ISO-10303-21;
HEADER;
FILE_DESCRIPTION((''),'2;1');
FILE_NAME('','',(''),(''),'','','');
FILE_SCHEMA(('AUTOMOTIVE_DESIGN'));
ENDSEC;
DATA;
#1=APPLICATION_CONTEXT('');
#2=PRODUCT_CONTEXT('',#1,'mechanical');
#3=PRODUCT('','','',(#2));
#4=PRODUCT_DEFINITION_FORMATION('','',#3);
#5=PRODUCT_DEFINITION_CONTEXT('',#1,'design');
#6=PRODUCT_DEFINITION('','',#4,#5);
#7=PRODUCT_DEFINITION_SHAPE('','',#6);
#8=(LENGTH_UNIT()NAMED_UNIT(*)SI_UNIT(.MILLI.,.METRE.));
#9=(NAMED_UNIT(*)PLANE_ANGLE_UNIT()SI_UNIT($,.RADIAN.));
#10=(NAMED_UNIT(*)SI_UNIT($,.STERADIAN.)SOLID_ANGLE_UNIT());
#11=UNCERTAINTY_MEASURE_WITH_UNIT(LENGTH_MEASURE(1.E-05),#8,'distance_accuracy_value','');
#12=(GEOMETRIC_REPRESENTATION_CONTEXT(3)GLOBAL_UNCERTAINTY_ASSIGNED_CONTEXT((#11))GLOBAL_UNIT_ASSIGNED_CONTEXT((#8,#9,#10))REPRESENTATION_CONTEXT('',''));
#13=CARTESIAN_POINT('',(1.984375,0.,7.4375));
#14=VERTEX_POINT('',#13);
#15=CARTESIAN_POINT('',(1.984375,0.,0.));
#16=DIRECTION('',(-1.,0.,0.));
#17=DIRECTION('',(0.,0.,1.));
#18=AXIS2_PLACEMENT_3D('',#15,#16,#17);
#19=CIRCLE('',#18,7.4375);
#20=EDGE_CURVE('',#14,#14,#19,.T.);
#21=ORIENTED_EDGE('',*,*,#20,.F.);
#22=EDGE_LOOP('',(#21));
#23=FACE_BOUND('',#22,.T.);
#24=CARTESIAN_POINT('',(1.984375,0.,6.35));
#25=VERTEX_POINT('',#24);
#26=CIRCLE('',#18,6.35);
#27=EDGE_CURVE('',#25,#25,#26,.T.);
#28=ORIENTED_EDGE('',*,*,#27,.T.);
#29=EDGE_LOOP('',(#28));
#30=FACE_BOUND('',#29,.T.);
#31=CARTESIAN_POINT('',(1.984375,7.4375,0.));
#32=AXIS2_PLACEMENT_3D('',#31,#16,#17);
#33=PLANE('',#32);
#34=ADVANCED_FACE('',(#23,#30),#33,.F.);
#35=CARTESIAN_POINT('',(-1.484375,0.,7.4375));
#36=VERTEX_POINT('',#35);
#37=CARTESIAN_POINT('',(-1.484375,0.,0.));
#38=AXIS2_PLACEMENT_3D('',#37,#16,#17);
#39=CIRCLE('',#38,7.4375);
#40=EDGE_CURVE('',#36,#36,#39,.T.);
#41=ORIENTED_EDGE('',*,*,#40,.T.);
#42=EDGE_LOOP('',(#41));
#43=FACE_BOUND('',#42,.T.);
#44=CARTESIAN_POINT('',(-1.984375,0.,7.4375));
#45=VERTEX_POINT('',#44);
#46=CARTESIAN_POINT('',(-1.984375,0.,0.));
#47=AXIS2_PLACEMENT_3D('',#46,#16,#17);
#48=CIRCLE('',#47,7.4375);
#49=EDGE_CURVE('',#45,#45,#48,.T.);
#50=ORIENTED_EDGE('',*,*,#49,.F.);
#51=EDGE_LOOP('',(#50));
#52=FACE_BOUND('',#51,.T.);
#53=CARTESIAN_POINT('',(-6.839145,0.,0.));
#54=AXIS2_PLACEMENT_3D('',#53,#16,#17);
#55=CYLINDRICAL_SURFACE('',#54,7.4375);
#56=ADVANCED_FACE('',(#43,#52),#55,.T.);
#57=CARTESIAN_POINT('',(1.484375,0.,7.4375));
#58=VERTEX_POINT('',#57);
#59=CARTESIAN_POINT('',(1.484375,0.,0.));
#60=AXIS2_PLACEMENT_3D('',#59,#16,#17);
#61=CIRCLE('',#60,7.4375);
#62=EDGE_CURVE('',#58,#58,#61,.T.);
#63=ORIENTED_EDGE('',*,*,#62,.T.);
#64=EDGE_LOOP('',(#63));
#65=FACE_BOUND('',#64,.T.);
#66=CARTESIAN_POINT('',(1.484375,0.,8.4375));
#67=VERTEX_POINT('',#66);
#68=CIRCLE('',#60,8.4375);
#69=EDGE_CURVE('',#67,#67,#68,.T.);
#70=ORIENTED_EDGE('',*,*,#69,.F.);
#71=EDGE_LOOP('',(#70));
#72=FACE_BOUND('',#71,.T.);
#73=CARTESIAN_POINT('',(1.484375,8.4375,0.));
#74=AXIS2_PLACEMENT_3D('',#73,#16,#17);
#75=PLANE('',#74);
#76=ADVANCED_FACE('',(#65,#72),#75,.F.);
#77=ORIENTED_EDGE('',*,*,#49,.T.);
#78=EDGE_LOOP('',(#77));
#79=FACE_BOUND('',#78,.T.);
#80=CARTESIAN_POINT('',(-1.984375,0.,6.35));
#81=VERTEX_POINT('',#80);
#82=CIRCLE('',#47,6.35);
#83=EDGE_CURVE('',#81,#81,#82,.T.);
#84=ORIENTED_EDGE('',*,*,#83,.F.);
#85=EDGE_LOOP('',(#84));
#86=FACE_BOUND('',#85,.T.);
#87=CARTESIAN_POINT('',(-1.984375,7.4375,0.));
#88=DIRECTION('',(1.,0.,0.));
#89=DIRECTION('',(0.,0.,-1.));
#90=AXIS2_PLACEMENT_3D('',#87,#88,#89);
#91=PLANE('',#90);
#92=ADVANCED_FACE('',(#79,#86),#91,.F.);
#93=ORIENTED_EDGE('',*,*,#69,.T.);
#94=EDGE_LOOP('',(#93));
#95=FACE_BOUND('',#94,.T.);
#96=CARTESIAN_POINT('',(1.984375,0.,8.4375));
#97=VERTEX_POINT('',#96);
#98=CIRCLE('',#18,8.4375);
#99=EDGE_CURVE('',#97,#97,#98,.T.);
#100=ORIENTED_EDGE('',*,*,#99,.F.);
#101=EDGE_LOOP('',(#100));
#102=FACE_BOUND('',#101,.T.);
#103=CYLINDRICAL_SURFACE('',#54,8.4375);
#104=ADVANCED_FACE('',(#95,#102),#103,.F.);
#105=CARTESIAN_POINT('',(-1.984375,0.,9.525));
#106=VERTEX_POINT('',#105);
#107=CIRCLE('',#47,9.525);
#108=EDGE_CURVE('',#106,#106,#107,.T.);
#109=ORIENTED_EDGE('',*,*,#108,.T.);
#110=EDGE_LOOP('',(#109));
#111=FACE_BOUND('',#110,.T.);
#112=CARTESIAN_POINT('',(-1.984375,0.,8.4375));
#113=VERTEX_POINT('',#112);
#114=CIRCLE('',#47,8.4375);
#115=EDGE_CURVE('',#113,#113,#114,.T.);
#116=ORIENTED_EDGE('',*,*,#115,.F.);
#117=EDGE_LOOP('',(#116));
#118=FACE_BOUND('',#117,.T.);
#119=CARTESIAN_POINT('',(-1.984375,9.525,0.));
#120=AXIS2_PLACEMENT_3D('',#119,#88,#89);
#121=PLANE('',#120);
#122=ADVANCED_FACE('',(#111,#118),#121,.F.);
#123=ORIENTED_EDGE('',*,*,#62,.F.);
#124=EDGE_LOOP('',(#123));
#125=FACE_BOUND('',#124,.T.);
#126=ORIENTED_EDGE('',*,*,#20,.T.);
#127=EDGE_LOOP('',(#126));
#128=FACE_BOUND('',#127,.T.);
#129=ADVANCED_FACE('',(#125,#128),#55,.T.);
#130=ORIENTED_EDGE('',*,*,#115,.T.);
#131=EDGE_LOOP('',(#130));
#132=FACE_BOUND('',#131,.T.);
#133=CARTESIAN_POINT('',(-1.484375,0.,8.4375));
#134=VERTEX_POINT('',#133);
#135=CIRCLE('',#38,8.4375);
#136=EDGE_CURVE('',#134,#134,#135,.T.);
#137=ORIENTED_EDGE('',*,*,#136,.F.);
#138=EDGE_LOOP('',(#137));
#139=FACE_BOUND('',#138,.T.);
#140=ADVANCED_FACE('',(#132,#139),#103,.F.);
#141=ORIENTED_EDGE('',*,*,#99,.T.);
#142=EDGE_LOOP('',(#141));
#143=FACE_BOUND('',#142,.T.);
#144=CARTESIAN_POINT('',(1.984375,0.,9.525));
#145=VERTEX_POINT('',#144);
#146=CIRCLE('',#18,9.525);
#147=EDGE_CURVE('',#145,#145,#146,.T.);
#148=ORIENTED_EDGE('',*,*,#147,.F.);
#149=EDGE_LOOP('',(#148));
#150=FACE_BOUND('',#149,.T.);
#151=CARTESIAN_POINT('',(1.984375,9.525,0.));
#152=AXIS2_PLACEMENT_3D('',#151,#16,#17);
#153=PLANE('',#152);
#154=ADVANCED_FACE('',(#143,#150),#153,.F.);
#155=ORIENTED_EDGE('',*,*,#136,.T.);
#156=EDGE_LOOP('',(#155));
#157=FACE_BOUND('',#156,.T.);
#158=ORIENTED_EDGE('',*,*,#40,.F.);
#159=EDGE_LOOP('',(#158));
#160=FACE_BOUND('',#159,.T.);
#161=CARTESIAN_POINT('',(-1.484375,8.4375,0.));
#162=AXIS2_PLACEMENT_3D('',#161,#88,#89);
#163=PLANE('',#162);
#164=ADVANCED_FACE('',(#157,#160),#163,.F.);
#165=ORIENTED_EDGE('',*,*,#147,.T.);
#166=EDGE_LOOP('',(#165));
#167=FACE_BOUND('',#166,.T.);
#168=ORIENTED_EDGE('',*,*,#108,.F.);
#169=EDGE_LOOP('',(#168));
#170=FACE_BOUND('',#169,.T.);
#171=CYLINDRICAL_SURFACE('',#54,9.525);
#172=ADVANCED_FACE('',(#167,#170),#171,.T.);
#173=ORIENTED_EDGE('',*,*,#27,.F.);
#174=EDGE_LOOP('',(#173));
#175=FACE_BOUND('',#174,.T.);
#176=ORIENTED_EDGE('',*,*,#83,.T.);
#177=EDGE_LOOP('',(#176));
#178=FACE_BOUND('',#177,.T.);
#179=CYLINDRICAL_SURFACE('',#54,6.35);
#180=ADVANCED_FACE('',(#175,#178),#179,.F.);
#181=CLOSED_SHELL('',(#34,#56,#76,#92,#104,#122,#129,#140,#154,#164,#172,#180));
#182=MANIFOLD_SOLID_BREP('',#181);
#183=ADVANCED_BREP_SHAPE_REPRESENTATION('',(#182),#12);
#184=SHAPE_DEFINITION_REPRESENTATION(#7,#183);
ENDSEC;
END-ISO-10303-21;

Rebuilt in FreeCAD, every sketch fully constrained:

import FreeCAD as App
import Part
import Sketcher
from FreeCAD import Vector
Q = App.Units.Quantity


def add_polygon(sketch, points):
    """Adds a closed chain of lines whose ends are joined by coincident constraints."""
    first, n = sketch.GeometryCount, len(points)
    for a, b in zip(points, points[1:] + points[:1]):
        sketch.addGeometry(Part.LineSegment(App.Vector(*a, 0), App.Vector(*b, 0)), False)
    for i in range(n):
        sketch.addConstraint(Sketcher.Constraint("Coincident", first + i, 2, first + (i + 1) % n, 1))

doc = App.newDocument("Part")
params = doc.addObject("Spreadsheet::Sheet", "Params")
for row, (alias, value) in enumerate([
    ("sketch1_height", "1 mm"),
    ("sketch1_width", "0.5 mm"),
    ("revolution_angle", "360 deg"),
], start=1):
    params.set(f"A{row}", alias)
    params.set(f"B{row}", "=" + value)
    params.setAlias(f"B{row}", alias)

body = doc.addObject("PartDesign::Body", "Body")

sketch1 = doc.addObject("Sketcher::SketchObject", "Sketch")
body.addObject(sketch1)
sketch1.AttachmentSupport = (doc.XY_Plane, [""])
sketch1.MapMode = "FlatFace"
add_polygon(sketch1, [(-2, 7.4), (-2, 6.3), (2, 6.3), (2, 7.4), (1.5, 7.4), (1.5, 8.4), (2, 8.4), (2, 9.5), (-2, 9.5), (-2, 8.4), (-1.5, 8.4), (-1.5, 7.4)])
sketch1.addConstraint([
    Sketcher.Constraint("Vertical", 0),
    Sketcher.Constraint("Horizontal", 1),
    Sketcher.Constraint("Vertical", 2),
    Sketcher.Constraint("Horizontal", 3),
    Sketcher.Constraint("Vertical", 4),
    Sketcher.Constraint("Horizontal", 5),
    Sketcher.Constraint("Vertical", 6),
    Sketcher.Constraint("Horizontal", 7),
    Sketcher.Constraint("Vertical", 8),
    Sketcher.Constraint("Horizontal", 9),
    Sketcher.Constraint("Vertical", 10),
    Sketcher.Constraint("Horizontal", 11),
    Sketcher.Constraint("Symmetric", 5, 2, 8, 2, -2),
    Sketcher.Constraint("Symmetric", 3, 2, 10, 2, -2),
    Sketcher.Constraint("Vertical", 2, 2, 5, 2),
    Sketcher.Constraint("Vertical", 0, 2, 7, 2),
    Sketcher.Constraint("Equal", 2, 6),
    Sketcher.Constraint("DistanceY", 4, 1, 4, 2, Q("1 mm")),
    Sketcher.Constraint("DistanceX", 3, 2, 3, 1, Q("0.5 mm")),
    Sketcher.Constraint("DistanceY", -1, 1, 0, 2, Q("6.35 mm")),
    Sketcher.Constraint("DistanceY", 0, 2, 0, 1, Q("1.0875 mm")),
    Sketcher.Constraint("DistanceX", 1, 1, 1, 2, Q("3.96875 mm")),
])
sketch1.setExpression("Constraints[29]", "Params.sketch1_height")
sketch1.setExpression("Constraints[30]", "Params.sketch1_width")
revolution = doc.addObject("PartDesign::Revolution", "Revolution")
body.addObject(revolution)
revolution.Profile = sketch1
revolution.ReferenceAxis = (sketch1, ["H_Axis"])
revolution.setExpression("Angle", "Params.revolution_angle")

doc.recompute()
